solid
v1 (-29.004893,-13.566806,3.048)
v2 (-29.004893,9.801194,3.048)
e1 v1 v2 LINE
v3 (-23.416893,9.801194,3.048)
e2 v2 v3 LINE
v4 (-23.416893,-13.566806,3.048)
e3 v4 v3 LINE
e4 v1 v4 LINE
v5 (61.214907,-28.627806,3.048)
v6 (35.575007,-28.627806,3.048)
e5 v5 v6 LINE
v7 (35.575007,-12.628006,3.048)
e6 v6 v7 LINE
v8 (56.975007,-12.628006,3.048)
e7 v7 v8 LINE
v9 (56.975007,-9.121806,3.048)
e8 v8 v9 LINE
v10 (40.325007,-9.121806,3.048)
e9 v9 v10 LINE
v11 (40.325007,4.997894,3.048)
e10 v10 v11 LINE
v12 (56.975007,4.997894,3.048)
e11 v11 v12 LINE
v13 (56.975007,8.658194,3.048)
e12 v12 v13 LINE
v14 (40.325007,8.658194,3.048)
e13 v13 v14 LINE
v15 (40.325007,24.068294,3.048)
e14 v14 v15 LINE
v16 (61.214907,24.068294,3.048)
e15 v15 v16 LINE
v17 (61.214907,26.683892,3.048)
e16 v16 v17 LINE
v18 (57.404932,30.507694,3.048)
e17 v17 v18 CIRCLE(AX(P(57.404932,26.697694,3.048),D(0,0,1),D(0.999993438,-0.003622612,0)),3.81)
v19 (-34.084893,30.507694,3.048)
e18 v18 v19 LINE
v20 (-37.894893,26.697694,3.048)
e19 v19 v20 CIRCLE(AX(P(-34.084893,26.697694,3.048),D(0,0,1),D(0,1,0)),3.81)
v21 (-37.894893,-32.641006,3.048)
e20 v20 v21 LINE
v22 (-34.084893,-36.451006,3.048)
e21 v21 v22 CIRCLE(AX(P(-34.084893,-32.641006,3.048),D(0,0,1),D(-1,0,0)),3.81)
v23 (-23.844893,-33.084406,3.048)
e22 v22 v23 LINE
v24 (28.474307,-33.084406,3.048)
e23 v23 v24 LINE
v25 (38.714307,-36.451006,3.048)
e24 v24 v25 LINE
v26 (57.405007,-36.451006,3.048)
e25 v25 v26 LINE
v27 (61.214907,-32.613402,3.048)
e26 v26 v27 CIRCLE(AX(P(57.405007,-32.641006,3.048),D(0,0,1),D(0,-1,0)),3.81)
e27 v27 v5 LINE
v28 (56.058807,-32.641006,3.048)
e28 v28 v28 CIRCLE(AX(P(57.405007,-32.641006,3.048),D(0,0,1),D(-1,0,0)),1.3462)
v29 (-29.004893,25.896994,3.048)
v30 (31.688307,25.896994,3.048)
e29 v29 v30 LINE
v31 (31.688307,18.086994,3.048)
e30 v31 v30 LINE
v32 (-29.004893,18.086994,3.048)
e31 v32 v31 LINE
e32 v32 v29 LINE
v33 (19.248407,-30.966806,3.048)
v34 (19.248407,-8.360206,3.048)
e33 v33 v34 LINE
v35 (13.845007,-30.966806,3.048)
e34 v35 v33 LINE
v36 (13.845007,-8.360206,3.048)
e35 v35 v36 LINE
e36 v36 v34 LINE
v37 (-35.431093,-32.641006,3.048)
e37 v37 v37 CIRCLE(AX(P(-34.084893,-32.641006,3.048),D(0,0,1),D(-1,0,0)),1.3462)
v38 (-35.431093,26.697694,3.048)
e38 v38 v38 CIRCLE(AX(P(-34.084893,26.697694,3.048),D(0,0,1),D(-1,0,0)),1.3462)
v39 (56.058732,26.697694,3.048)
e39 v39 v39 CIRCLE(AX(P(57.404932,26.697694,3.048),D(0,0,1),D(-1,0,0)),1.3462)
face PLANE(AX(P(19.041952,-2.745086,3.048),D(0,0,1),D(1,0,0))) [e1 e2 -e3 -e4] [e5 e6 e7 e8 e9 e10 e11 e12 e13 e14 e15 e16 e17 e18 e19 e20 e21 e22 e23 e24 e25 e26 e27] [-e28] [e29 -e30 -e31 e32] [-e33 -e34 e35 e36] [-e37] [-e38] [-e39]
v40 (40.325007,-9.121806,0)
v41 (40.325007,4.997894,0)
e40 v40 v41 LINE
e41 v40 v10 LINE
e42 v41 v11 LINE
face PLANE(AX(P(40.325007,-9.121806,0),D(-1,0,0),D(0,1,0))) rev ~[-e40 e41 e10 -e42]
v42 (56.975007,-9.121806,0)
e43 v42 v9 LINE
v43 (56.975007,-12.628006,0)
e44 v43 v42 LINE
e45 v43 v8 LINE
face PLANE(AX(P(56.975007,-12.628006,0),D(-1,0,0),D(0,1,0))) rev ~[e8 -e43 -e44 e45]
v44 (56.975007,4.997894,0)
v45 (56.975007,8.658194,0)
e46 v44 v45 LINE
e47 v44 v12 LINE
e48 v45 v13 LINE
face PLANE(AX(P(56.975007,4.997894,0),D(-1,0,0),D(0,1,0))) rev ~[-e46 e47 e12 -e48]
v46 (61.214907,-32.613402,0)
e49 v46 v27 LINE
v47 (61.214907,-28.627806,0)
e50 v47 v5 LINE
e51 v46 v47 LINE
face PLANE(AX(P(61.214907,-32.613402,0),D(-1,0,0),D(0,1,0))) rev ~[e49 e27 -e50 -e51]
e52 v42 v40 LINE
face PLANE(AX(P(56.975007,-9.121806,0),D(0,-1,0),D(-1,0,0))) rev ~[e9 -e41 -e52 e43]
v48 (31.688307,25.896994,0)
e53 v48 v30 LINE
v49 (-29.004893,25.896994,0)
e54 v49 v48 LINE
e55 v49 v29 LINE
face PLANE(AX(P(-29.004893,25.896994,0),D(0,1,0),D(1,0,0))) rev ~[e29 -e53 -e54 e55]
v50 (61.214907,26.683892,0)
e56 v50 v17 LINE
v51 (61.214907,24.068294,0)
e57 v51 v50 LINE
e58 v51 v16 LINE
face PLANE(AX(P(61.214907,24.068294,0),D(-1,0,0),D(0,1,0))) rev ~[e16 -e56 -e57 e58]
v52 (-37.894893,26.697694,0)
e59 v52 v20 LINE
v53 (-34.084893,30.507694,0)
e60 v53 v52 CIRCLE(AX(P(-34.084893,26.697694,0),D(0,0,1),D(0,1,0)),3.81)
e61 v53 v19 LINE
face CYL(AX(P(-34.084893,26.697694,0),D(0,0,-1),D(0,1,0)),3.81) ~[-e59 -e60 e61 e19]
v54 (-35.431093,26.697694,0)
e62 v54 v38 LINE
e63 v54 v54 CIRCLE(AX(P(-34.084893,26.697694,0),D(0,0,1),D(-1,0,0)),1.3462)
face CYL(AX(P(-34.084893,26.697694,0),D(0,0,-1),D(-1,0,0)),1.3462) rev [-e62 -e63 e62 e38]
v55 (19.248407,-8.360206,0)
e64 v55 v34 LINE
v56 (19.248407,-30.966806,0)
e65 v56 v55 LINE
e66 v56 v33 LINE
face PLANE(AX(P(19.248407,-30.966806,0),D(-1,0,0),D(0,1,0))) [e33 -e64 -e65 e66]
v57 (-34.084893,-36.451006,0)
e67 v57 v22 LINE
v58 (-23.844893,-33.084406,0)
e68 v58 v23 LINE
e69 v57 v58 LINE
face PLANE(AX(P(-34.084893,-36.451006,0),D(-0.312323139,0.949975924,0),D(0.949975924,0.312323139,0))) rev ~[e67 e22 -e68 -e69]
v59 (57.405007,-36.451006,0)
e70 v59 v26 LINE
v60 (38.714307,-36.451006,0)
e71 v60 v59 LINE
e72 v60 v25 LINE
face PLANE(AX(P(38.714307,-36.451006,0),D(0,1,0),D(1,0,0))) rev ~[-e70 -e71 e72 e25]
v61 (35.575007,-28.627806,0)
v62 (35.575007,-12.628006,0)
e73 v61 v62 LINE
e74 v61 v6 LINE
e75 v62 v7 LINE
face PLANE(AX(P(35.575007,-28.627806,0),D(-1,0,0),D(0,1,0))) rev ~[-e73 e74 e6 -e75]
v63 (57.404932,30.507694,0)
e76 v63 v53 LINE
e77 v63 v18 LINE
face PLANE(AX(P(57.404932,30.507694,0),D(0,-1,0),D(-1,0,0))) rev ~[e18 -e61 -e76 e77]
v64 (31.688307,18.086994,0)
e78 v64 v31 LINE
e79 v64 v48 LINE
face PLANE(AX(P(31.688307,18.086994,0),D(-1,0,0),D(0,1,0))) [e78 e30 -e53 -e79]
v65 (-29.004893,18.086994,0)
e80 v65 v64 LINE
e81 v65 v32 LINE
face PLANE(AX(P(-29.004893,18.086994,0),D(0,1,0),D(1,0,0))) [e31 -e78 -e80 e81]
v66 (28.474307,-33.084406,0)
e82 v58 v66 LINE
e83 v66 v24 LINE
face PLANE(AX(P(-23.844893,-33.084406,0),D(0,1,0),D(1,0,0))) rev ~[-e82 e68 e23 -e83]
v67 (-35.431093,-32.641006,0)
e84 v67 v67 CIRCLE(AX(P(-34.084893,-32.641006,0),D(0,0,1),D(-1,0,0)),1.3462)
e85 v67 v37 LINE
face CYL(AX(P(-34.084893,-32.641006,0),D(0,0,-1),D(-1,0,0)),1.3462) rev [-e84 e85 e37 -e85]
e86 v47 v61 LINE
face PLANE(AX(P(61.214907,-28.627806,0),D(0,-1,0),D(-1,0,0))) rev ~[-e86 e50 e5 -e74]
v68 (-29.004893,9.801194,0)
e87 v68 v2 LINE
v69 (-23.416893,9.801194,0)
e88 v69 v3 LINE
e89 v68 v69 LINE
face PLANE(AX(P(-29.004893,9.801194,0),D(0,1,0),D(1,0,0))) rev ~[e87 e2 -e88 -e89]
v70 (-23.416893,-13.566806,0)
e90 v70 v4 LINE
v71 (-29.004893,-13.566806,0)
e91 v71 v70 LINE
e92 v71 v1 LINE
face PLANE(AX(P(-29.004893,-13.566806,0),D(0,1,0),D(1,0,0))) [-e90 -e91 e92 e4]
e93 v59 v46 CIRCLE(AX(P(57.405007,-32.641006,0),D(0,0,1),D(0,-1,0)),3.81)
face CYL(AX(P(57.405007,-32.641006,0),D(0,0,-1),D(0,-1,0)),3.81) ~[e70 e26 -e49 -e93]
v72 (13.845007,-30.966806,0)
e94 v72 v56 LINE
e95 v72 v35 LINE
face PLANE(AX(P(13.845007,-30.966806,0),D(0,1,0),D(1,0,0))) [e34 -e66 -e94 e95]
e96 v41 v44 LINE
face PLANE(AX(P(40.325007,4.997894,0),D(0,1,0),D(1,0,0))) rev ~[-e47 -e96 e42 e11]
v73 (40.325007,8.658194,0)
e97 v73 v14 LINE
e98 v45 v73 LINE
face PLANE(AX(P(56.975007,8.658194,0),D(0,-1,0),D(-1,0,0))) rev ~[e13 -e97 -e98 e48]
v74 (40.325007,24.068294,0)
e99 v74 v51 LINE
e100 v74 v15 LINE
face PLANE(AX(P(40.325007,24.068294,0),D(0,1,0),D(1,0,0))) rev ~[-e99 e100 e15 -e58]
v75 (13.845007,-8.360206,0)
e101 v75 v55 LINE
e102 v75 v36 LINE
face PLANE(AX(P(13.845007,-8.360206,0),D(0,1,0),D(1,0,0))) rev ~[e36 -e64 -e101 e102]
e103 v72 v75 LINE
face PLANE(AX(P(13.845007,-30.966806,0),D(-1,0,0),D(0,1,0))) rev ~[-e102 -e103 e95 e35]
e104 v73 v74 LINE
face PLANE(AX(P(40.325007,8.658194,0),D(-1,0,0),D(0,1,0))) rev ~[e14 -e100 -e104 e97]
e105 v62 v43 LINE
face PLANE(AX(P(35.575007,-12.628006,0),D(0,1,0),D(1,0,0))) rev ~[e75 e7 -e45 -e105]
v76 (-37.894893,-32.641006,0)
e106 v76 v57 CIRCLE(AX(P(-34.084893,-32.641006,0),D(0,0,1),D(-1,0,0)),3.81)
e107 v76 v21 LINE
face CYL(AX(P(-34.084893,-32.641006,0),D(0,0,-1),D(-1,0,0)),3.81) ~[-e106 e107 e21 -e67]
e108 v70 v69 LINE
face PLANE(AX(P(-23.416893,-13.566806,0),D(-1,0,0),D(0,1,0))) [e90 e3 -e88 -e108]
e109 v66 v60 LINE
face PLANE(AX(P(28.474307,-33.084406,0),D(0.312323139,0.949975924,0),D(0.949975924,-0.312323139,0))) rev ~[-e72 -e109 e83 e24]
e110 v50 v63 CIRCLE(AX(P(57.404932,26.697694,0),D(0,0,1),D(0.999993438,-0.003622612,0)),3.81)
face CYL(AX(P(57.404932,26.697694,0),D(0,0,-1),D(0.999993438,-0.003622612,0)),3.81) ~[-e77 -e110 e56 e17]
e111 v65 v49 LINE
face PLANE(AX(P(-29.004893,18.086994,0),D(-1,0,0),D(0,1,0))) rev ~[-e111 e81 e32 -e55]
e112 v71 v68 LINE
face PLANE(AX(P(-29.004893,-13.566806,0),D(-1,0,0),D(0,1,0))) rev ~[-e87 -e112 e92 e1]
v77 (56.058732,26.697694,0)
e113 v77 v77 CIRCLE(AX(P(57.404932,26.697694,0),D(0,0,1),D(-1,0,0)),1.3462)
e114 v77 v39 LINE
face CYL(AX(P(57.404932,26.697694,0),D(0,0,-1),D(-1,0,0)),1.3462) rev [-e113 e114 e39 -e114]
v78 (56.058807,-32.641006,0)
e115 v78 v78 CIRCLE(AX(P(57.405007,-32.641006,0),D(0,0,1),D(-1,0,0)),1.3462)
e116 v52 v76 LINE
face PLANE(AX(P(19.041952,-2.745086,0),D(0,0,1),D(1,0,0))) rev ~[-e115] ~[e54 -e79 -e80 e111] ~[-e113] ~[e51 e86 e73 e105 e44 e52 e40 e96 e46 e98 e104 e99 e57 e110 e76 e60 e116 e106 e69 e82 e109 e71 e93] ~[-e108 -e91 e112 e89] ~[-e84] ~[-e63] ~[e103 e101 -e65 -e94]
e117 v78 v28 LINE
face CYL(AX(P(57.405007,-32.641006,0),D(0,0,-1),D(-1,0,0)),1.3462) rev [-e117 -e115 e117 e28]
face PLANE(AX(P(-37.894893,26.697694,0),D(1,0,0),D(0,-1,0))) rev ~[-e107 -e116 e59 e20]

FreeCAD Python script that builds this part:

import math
import FreeCAD as App
import Part
import Sketcher
from FreeCAD import Vector
Q = App.Units.Quantity


def add_polygon(sketch, points):
    """Adds a closed chain of lines whose ends are joined by coincident constraints."""
    first, n = sketch.GeometryCount, len(points)
    for a, b in zip(points, points[1:] + points[:1]):
        sketch.addGeometry(Part.LineSegment(App.Vector(*a, 0), App.Vector(*b, 0)), False)
    for i in range(n):
        sketch.addConstraint(Sketcher.Constraint("Coincident", first + i, 2, first + (i + 1) % n, 1))

doc = App.newDocument("Part")
body = doc.addObject("PartDesign::Body", "Body")

# Sketch on XY plane
sketch1 = body.newObject("Sketcher::SketchObject", "Sketch")
sketch1.AttachmentSupport = (doc.getObject("XY_Plane"), [""])
sketch1.MapMode = "FlatFace"
sketch1.addGeometry(Part.LineSegment(Vector(57.404932, 30.507694, 0), Vector(-34.084893, 30.507694, 0)), False)  # 0
sketch1.addGeometry(Part.ArcOfCircle(Part.Circle(Vector(-34.084893, 26.697694, 0), Vector(0, 0, 1), 3.81), math.radians(90), math.radians(180)), False)  # 1
sketch1.addGeometry(Part.LineSegment(Vector(-37.894893, 26.697694, 0), Vector(-37.894893, -32.641006, 0)), False)  # 2
sketch1.addGeometry(Part.ArcOfCircle(Part.Circle(Vector(-34.084893, -32.641006, 0), Vector(0, 0, 1), 3.81), math.radians(-180), math.radians(-90)), False)  # 3
sketch1.addGeometry(Part.LineSegment(Vector(-34.084893, -36.451006, 0), Vector(-23.844893, -33.084406, 0)), False)  # 4
sketch1.addGeometry(Part.LineSegment(Vector(-23.844893, -33.084406, 0), Vector(28.474307, -33.084406, 0)), False)  # 5
sketch1.addGeometry(Part.LineSegment(Vector(28.474307, -33.084406, 0), Vector(38.714307, -36.451006, 0)), False)  # 6
sketch1.addGeometry(Part.LineSegment(Vector(38.714307, -36.451006, 0), Vector(57.405007, -36.451006, 0)), False)  # 7
sketch1.addGeometry(Part.ArcOfCircle(Part.Circle(Vector(57.405007, -32.641006, 0), Vector(0, 0, 1), 3.81), math.radians(-90), math.radians(0.415122)), False)  # 8
sketch1.addGeometry(Part.LineSegment(Vector(61.214907, -32.613402, 0), Vector(61.214907, -28.627806, 0)), False)  # 9
sketch1.addGeometry(Part.LineSegment(Vector(61.214907, -28.627806, 0), Vector(35.575007, -28.627806, 0)), False)  # 10
sketch1.addGeometry(Part.LineSegment(Vector(35.575007, -28.627806, 0), Vector(35.575007, -12.628006, 0)), False)  # 11
sketch1.addGeometry(Part.LineSegment(Vector(35.575007, -12.628006, 0), Vector(56.975007, -12.628006, 0)), False)  # 12
sketch1.addGeometry(Part.LineSegment(Vector(56.975007, -12.628006, 0), Vector(56.975007, -9.121806, 0)), False)  # 13
sketch1.addGeometry(Part.LineSegment(Vector(56.975007, -9.121806, 0), Vector(40.325007, -9.121806, 0)), False)  # 14
sketch1.addGeometry(Part.LineSegment(Vector(40.325007, -9.121806, 0), Vector(40.325007, 4.997894, 0)), False)  # 15
sketch1.addGeometry(Part.LineSegment(Vector(40.325007, 4.997894, 0), Vector(56.975007, 4.997894, 0)), False)  # 16
sketch1.addGeometry(Part.LineSegment(Vector(56.975007, 4.997894, 0), Vector(56.975007, 8.658194, 0)), False)  # 17
sketch1.addGeometry(Part.LineSegment(Vector(56.975007, 8.658194, 0), Vector(40.325007, 8.658194, 0)), False)  # 18
sketch1.addGeometry(Part.LineSegment(Vector(40.325007, 8.658194, 0), Vector(40.325007, 24.068294, 0)), False)  # 19
sketch1.addGeometry(Part.LineSegment(Vector(40.325007, 24.068294, 0), Vector(61.214907, 24.068294, 0)), False)  # 20
sketch1.addGeometry(Part.LineSegment(Vector(61.214907, 24.068294, 0), Vector(61.214907, 26.683892, 0)), False)  # 21
sketch1.addGeometry(Part.ArcOfCircle(Part.Circle(Vector(57.404932, 26.697694, 0), Vector(0, 0, 1), 3.81), math.radians(-0.207561), math.radians(90)), False)  # 22
sketch1.addGeometry(Part.Circle(Vector(-34.084893, -32.641006, 0), Vector(0, 0, 1), 1.3462), False)  # 23
add_polygon(sketch1, [(19.248407, -30.966806), (13.845007, -30.966806), (13.845007, -8.360206), (19.248407, -8.360206)])  # lines 24-27
sketch1.addGeometry(Part.Circle(Vector(57.405007, -32.641006, 0), Vector(0, 0, 1), 1.3462), False)  # 28
add_polygon(sketch1, [(-23.416893, -13.566806), (-29.004893, -13.566806), (-29.004893, 9.801194), (-23.416893, 9.801194)])  # lines 29-32
sketch1.addGeometry(Part.Circle(Vector(-34.084893, 26.697694, 0), Vector(0, 0, 1), 1.3462), False)  # 33
add_polygon(sketch1, [(31.688307, 18.086994), (-29.004893, 18.086994), (-29.004893, 25.896994), (31.688307, 25.896994)])  # lines 34-37
sketch1.addGeometry(Part.Circle(Vector(57.404932, 26.697694, 0), Vector(0, 0, 1), 1.3462), False)  # 38
sketch1.addConstraint(Sketcher.Constraint("Tangent", 0, 2, 1, 1))
sketch1.addConstraint(Sketcher.Constraint("Tangent", 1, 2, 2, 1))
sketch1.addConstraint(Sketcher.Constraint("Tangent", 2, 2, 3, 1))
sketch1.addConstraint(Sketcher.Constraint("Coincident", 3, 2, 4, 1))
sketch1.addConstraint(Sketcher.Constraint("Coincident", 4, 2, 5, 1))
sketch1.addConstraint(Sketcher.Constraint("Coincident", 5, 2, 6, 1))
sketch1.addConstraint(Sketcher.Constraint("Coincident", 6, 2, 7, 1))
sketch1.addConstraint(Sketcher.Constraint("Tangent", 7, 2, 8, 1))
sketch1.addConstraint(Sketcher.Constraint("Coincident", 8, 2, 9, 1))
sketch1.addConstraint(Sketcher.Constraint("Coincident", 9, 2, 10, 1))
sketch1.addConstraint(Sketcher.Constraint("Coincident", 10, 2, 11, 1))
sketch1.addConstraint(Sketcher.Constraint("Coincident", 11, 2, 12, 1))
sketch1.addConstraint(Sketcher.Constraint("Coincident", 12, 2, 13, 1))
sketch1.addConstraint(Sketcher.Constraint("Coincident", 13, 2, 14, 1))
sketch1.addConstraint(Sketcher.Constraint("Coincident", 14, 2, 15, 1))
sketch1.addConstraint(Sketcher.Constraint("Coincident", 15, 2, 16, 1))
sketch1.addConstraint(Sketcher.Constraint("Coincident", 16, 2, 17, 1))
sketch1.addConstraint(Sketcher.Constraint("Coincident", 17, 2, 18, 1))
sketch1.addConstraint(Sketcher.Constraint("Coincident", 18, 2, 19, 1))
sketch1.addConstraint(Sketcher.Constraint("Coincident", 19, 2, 20, 1))
sketch1.addConstraint(Sketcher.Constraint("Coincident", 20, 2, 21, 1))
sketch1.addConstraint(Sketcher.Constraint("Coincident", 21, 2, 22, 1))
sketch1.addConstraint(Sketcher.Constraint("Tangent", 22, 2, 0, 1))
sketch1.addConstraint(Sketcher.Constraint("Horizontal", 0))
sketch1.addConstraint(Sketcher.Constraint("Vertical", 2))
sketch1.addConstraint(Sketcher.Constraint("Horizontal", 5))
sketch1.addConstraint(Sketcher.Constraint("Horizontal", 7))
sketch1.addConstraint(Sketcher.Constraint("Vertical", 9))
sketch1.addConstraint(Sketcher.Constraint("Horizontal", 10))
sketch1.addConstraint(Sketcher.Constraint("Vertical", 11))
sketch1.addConstraint(Sketcher.Constraint("Horizontal", 12))
sketch1.addConstraint(Sketcher.Constraint("Vertical", 13))
sketch1.addConstraint(Sketcher.Constraint("Horizontal", 14))
sketch1.addConstraint(Sketcher.Constraint("Vertical", 15))
sketch1.addConstraint(Sketcher.Constraint("Horizontal", 16))
sketch1.addConstraint(Sketcher.Constraint("Vertical", 17))
sketch1.addConstraint(Sketcher.Constraint("Horizontal", 18))
sketch1.addConstraint(Sketcher.Constraint("Vertical", 19))
sketch1.addConstraint(Sketcher.Constraint("Horizontal", 20))
sketch1.addConstraint(Sketcher.Constraint("Vertical", 21))
sketch1.addConstraint(Sketcher.Constraint("Horizontal", 24))
sketch1.addConstraint(Sketcher.Constraint("Vertical", 25))
sketch1.addConstraint(Sketcher.Constraint("Horizontal", 26))
sketch1.addConstraint(Sketcher.Constraint("Vertical", 27))
sketch1.addConstraint(Sketcher.Constraint("Horizontal", 29))
sketch1.addConstraint(Sketcher.Constraint("Vertical", 30))
sketch1.addConstraint(Sketcher.Constraint("Horizontal", 31))
sketch1.addConstraint(Sketcher.Constraint("Vertical", 32))
sketch1.addConstraint(Sketcher.Constraint("Horizontal", 34))
sketch1.addConstraint(Sketcher.Constraint("Vertical", 35))
sketch1.addConstraint(Sketcher.Constraint("Horizontal", 36))
sketch1.addConstraint(Sketcher.Constraint("Vertical", 37))
sketch1.addConstraint(Sketcher.Constraint("Coincident", 23, 3, 3, 3))
sketch1.addConstraint(Sketcher.Constraint("Coincident", 28, 3, 8, 3))
sketch1.addConstraint(Sketcher.Constraint("Coincident", 33, 3, 1, 3))
sketch1.addConstraint(Sketcher.Constraint("Coincident", 38, 3, 22, 3))
sketch1.addConstraint(Sketcher.Constraint("Equal", 1, 3))
sketch1.addConstraint(Sketcher.Constraint("Equal", 3, 8))
sketch1.addConstraint(Sketcher.Constraint("Equal", 8, 22))
sketch1.addConstraint(Sketcher.Constraint("Equal", 23, 28))
sketch1.addConstraint(Sketcher.Constraint("Equal", 28, 33))
sketch1.addConstraint(Sketcher.Constraint("Equal", 33, 38))
sketch1.addConstraint(Sketcher.Constraint("Horizontal", 3, 3, 8, 3))
sketch1.addConstraint(Sketcher.Constraint("Vertical", 0, 2, 3, 2))
sketch1.addConstraint(Sketcher.Constraint("Vertical", 13, 2, 16, 2))
sketch1.addConstraint(Sketcher.Constraint("Vertical", 15, 2, 18, 2))
sketch1.addConstraint(Sketcher.Constraint("Vertical", 9, 2, 20, 2))
sketch1.addConstraint(Sketcher.Constraint("Vertical", 30, 2, 34, 2))
sketch1.addConstraint(Sketcher.Constraint("Equal", 4, 6))
sketch1.addConstraint(Sketcher.Constraint("Radius", 1, Q("0.15 in")))
sketch1.addConstraint(Sketcher.Constraint("Diameter", 23, Q("0.106 in")))
sketch1.addConstraint(Sketcher.Constraint("DistanceX", 29, 2, 29, 1, Q("0.22 in")))
sketch1.addConstraint(Sketcher.Constraint("DistanceY", 30, 1, 30, 2, Q("0.92 in")))
sketch1.addConstraint(Sketcher.Constraint("DistanceY", 13, 2, 17, 2, Q("0.7 in")))
sketch1.addConstraint(Sketcher.Constraint("DistanceX", 3, 3, 29, 2, Q("0.2 in")))
sketch1.addConstraint(Sketcher.Constraint("DistanceX", 5, 2, 8, 2, Q("1.289 in")))
sketch1.addConstraint(Sketcher.Constraint("DistanceY", 8, 3, 9, 2, Q("0.158 in")))
sketch1.addConstraint(Sketcher.Constraint("DistanceY", 24, 2, 11, 2, Q("0.722 in")))
sketch1.addConstraint(Sketcher.Constraint("DistanceX", 5, 1, 5, 2, 52.3192))
sketch1.addConstraint(Sketcher.Constraint("DistanceX", 7, 1, 7, 2, 18.6907))
sketch1.addConstraint(Sketcher.Constraint("DistanceX", 10, 2, 10, 1, 25.6399))
sketch1.addConstraint(Sketcher.Constraint("DistanceX", 12, 1, 12, 2, 21.4))
sketch1.addConstraint(Sketcher.Constraint("DistanceX", 14, 2, 14, 1, 16.65))
sketch1.addConstraint(Sketcher.Constraint("DistanceX", 24, 2, 24, 1, 5.4034))
sketch1.addConstraint(Sketcher.Constraint("DistanceX", 34, 2, 34, 1, 60.6932))
sketch1.addConstraint(Sketcher.Constraint("DistanceY", 2, 2, 2, 1, 59.3387))
sketch1.addConstraint(Sketcher.Constraint("DistanceY", 11, 1, 11, 2, 15.9998))
sketch1.addConstraint(Sketcher.Constraint("DistanceY", 13, 1, 13, 2, 3.5062))
sketch1.addConstraint(Sketcher.Constraint("DistanceY", 15, 1, 15, 2, 14.1197))
sketch1.addConstraint(Sketcher.Constraint("DistanceY", 19, 1, 19, 2, 15.4101))
sketch1.addConstraint(Sketcher.Constraint("DistanceY", 25, 1, 25, 2, 22.6066))
sketch1.addConstraint(Sketcher.Constraint("DistanceY", 35, 1, 35, 2, 7.81))
sketch1.addConstraint(Sketcher.Constraint("DistanceY", 8, 2, -1, 1, 32.613402))
sketch1.addConstraint(Sketcher.Constraint("DistanceY", 4, 2, 3, 3, 0.4434))
sketch1.addConstraint(Sketcher.Constraint("DistanceX", 24, 2, 5, 2, 14.6293))
sketch1.addConstraint(Sketcher.Constraint("DistanceY", 3, 3, 29, 2, 19.0742))
sketch1.addConstraint(Sketcher.Constraint("DistanceY", 30, 2, 34, 2, 8.2858))
sketch1.addConstraint(Sketcher.Constraint("DistanceX", 0, 2, 0, 1, 91.489825))
sketch1.addConstraint(Sketcher.Constraint("DistanceY", 9, 1, 9, 2, 3.985596))
sketch1.addConstraint(Sketcher.Constraint("DistanceX", 1, 3, -1, 1, 34.084893))
pad1 = body.newObject("PartDesign::Pad", "Pad")
pad1.Profile = sketch1
pad1.Length = Q("0.12 in")

doc.recompute()
